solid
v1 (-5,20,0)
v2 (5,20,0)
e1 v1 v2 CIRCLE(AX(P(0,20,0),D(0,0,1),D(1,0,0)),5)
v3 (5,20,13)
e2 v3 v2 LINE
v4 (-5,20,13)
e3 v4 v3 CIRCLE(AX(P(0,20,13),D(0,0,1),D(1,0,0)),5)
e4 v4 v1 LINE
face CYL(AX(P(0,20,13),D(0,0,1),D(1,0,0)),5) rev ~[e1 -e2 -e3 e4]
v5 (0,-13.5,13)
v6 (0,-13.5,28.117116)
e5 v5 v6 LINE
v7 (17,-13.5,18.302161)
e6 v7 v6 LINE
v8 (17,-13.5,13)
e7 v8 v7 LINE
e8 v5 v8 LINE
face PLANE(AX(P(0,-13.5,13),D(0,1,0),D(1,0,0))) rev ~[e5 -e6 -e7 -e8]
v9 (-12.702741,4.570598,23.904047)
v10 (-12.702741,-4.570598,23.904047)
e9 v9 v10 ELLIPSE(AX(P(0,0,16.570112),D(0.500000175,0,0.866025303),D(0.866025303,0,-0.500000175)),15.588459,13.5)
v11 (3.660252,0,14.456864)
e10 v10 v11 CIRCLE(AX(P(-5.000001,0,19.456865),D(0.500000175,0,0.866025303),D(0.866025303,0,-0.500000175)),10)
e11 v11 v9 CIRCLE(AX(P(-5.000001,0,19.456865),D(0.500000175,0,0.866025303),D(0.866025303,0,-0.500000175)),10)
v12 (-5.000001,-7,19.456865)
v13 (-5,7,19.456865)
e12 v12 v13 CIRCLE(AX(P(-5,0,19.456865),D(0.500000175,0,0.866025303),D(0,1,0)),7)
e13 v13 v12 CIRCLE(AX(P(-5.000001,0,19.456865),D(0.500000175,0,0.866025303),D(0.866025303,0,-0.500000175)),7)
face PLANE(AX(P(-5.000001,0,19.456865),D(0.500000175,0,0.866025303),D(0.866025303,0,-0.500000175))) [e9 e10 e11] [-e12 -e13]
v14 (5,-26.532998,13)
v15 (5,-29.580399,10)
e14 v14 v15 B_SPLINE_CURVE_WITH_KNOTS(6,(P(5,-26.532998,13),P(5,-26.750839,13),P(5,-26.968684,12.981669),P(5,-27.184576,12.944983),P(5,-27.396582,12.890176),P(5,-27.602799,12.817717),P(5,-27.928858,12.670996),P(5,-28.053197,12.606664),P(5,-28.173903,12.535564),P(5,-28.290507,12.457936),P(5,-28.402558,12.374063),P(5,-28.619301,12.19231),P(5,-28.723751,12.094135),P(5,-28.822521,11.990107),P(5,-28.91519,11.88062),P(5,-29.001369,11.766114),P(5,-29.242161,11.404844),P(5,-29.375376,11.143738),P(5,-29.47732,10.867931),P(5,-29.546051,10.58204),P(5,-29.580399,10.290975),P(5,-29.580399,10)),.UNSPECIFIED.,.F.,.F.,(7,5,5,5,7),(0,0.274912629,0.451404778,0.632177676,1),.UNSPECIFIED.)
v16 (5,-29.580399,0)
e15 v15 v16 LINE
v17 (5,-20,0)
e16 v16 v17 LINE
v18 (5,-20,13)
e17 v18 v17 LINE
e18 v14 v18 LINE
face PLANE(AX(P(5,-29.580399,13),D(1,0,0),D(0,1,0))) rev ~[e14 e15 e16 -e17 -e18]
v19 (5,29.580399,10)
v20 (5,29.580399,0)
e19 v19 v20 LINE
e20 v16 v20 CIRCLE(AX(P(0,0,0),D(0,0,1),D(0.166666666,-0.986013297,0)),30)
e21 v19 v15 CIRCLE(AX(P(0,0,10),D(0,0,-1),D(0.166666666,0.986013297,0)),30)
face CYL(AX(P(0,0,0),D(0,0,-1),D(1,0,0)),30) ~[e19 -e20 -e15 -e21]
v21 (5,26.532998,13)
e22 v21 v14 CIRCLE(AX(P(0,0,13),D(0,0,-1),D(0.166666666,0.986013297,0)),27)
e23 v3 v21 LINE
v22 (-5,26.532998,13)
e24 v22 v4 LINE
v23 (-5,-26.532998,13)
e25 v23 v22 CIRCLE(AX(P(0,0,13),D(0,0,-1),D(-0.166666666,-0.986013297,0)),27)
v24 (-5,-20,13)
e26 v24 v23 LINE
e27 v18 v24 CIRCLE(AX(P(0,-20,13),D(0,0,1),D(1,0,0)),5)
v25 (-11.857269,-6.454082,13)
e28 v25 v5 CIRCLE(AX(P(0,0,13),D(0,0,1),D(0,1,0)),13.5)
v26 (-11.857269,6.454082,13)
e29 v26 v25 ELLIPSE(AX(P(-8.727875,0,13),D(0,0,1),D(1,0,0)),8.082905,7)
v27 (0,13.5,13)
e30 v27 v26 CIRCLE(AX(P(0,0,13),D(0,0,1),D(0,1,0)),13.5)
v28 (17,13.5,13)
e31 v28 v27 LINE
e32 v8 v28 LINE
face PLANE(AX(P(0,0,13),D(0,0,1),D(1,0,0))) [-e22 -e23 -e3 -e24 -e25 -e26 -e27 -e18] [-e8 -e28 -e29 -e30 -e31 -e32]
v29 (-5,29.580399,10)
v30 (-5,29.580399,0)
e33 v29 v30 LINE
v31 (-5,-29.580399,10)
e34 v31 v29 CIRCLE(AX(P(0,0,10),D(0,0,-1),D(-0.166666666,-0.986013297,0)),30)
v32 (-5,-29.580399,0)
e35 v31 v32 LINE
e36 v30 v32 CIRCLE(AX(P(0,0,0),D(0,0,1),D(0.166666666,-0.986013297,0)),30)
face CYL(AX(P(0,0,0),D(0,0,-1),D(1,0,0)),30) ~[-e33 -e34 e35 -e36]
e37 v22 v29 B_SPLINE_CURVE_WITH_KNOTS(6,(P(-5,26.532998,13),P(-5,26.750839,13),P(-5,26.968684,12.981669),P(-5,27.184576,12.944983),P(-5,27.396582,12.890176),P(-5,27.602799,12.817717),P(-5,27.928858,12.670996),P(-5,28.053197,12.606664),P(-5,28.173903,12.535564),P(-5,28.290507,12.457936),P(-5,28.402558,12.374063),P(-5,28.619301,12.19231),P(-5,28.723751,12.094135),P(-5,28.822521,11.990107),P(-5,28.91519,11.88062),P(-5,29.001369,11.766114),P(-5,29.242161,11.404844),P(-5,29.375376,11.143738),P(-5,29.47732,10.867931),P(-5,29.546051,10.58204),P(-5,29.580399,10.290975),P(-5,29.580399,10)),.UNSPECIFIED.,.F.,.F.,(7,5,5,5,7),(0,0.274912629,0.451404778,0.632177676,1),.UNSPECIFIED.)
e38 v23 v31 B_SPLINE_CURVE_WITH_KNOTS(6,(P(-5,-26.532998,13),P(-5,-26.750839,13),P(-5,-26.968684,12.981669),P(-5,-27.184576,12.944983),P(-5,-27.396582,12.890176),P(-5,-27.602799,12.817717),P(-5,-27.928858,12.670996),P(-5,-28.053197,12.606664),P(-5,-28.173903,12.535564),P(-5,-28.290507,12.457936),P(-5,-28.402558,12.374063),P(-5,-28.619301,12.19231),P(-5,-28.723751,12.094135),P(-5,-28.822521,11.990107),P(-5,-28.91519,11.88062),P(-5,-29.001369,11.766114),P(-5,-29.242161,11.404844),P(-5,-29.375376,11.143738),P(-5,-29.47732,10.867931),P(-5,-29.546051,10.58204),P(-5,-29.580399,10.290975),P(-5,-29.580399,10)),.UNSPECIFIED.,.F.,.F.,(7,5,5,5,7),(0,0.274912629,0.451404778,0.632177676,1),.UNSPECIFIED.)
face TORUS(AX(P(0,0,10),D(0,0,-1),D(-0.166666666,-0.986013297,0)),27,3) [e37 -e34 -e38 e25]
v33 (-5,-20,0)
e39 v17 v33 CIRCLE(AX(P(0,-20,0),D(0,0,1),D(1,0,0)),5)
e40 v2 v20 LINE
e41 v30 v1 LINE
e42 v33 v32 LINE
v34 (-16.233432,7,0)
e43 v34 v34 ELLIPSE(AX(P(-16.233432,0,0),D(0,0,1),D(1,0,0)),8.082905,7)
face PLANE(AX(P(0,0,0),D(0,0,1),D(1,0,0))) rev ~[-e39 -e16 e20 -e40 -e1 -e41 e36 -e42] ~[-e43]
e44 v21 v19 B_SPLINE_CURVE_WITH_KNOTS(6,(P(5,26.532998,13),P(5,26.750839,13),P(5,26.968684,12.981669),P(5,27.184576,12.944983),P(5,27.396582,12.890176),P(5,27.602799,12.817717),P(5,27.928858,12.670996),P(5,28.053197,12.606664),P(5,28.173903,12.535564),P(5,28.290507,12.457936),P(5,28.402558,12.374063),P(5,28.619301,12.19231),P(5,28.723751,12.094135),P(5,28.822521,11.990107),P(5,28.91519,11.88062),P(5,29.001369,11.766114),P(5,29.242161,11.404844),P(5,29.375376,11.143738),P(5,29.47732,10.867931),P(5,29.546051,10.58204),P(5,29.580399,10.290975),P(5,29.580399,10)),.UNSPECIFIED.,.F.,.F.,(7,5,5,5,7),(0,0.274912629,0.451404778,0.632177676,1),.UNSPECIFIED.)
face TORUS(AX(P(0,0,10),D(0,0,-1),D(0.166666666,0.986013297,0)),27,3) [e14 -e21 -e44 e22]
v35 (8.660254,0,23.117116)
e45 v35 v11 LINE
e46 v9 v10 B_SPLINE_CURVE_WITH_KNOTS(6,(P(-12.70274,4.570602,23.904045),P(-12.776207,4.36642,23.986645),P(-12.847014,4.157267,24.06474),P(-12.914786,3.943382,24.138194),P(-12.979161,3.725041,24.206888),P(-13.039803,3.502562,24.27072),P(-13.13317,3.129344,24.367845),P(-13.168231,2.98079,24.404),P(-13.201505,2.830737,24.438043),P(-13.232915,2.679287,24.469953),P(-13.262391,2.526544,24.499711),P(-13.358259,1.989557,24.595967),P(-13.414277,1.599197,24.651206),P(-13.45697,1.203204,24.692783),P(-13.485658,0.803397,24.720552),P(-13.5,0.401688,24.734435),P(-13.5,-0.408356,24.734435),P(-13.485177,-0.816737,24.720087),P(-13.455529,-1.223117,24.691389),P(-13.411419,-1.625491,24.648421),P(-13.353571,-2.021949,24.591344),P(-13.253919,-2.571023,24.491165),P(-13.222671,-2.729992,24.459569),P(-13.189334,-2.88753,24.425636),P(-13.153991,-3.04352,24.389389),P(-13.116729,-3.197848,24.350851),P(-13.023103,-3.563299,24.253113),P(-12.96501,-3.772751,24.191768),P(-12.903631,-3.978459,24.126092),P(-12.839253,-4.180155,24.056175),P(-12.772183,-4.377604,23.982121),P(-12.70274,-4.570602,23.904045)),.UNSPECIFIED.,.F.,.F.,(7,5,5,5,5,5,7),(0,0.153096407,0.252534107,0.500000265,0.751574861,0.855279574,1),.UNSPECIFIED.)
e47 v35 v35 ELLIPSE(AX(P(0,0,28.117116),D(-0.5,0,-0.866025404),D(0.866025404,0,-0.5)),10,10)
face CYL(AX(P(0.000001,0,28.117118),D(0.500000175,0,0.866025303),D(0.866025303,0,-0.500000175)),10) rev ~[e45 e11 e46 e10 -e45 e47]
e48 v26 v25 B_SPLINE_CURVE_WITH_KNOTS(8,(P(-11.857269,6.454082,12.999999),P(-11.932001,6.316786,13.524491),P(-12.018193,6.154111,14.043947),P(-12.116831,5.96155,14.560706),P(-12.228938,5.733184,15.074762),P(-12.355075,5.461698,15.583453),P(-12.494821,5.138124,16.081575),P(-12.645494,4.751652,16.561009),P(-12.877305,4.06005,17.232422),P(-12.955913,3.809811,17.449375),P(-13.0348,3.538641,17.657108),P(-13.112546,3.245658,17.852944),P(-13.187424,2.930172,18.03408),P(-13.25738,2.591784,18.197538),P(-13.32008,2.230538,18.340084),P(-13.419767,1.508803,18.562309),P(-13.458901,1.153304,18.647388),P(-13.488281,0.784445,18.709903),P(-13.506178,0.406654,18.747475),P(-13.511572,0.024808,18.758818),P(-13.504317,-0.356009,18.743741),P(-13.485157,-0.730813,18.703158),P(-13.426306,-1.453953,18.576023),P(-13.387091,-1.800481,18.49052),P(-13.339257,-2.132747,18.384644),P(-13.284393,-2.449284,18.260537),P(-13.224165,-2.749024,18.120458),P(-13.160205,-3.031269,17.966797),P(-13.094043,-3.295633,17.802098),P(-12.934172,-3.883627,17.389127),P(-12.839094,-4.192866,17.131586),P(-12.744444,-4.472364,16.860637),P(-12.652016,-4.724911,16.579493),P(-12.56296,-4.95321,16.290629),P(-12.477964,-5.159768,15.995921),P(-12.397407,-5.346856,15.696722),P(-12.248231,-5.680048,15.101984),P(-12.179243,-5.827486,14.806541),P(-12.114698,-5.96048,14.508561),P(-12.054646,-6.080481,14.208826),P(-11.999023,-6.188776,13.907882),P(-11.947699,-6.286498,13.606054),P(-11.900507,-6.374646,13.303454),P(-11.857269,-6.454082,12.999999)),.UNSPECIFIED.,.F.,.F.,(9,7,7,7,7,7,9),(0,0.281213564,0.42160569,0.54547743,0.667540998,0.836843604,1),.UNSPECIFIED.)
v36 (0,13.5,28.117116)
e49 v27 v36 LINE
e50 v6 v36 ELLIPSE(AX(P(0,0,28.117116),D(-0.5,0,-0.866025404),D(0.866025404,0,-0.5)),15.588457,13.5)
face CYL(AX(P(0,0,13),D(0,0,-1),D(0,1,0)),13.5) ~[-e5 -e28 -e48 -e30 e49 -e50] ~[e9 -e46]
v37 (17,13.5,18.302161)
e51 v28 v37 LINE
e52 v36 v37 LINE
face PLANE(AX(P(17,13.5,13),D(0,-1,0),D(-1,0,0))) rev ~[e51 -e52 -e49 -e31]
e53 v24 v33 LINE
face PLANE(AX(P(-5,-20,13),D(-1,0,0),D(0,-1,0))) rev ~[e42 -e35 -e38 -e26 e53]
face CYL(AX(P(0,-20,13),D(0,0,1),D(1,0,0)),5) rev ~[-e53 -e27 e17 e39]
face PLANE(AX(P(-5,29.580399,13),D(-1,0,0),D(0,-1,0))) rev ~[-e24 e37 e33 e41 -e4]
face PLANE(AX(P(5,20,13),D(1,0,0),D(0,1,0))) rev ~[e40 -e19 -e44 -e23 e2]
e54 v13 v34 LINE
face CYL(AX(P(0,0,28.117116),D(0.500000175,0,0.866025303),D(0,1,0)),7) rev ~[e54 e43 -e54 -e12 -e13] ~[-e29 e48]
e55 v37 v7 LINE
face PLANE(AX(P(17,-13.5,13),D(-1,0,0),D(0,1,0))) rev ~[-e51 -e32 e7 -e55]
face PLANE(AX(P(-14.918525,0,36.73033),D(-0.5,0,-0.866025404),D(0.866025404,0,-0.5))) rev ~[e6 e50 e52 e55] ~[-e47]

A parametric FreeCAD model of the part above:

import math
import FreeCAD as App
import Part
import Sketcher
Q = App.Units.Quantity


def edges_at(feature, points):
    """Names of the edges that pass closest to the given points."""
    edges = feature.Shape.Edges
    near = lambda p: min(range(len(edges)), key=lambda i: edges[i].distToShape(Part.Vertex(*p))[0])
    return sorted({f"Edge{near(p) + 1}" for p in points})


def add_polygon(sketch, points):
    """Adds a closed chain of lines whose ends are joined by coincident constraints."""
    first, n = sketch.GeometryCount, len(points)
    for a, b in zip(points, points[1:] + points[:1]):
        sketch.addGeometry(Part.LineSegment(App.Vector(*a, 0), App.Vector(*b, 0)), False)
    for i in range(n):
        sketch.addConstraint(Sketcher.Constraint("Coincident", first + i, 2, first + (i + 1) % n, 1))

doc = App.newDocument("Part")
body = doc.addObject("PartDesign::Body", "Body")

# Sketch on XY plane
sketch1 = body.newObject("Sketcher::SketchObject", "Sketch")
sketch1.AttachmentSupport = (doc.getObject("XY_Plane"), [""])
sketch1.MapMode = "FlatFace"
sketch1.addGeometry(Part.Circle(App.Vector(0, 0, 0), App.Vector(0, 0, 1), 30), False)
sketch1.addConstraint([
    Sketcher.Constraint("Coincident", 0, 3, -1, 1),
    Sketcher.Constraint("Diameter", 0, 60.0),
])
pad1 = body.newObject("PartDesign::Pad", "Pad")
pad1.Profile = sketch1
pad1.Length = 13

# Sketch on XY plane
sketch2 = body.newObject("Sketcher::SketchObject", "Sketch001")
sketch2.AttachmentSupport = (doc.getObject("XY_Plane"), [""])
sketch2.MapMode = "FlatFace"
sketch2.AttachmentOffset = App.Placement(App.Vector(0, 0, 13), App.Rotation())
sketch2.addGeometry([
    Part.LineSegment(App.Vector(5, -30, 0), App.Vector(5, -20, 0)),
    Part.ArcOfCircle(Part.Circle(App.Vector(0, -20, 0), App.Vector(0, 0, 1), 5), math.radians(0), math.radians(180)),
    Part.LineSegment(App.Vector(-5, -20, 0), App.Vector(-5, -30, 0)),
    Part.ArcOfCircle(Part.Circle(App.Vector(0, 0, 0), App.Vector(0, 0, 1), 30), math.radians(-99.59), math.radians(-80.41)),
], False)
sketch2.addConstraint([
    Sketcher.Constraint("Tangent", 0, 2, 1, 1),
    Sketcher.Constraint("Tangent", 1, 2, 2, 1),
    Sketcher.Constraint("Coincident", 2, 2, 3, 1),
    Sketcher.Constraint("Coincident", 3, 2, 0, 1),
    Sketcher.Constraint("Vertical", 0),
    Sketcher.Constraint("Vertical", 2),
    Sketcher.Constraint("Coincident", 3, 3, -1, 1),
    Sketcher.Constraint("PointOnObject", 1, 3, -2),
    Sketcher.Constraint("Radius", 1, 5.0),
    Sketcher.Constraint("DistanceY", 1, 3, -1, 1, 20.0),
    Sketcher.Constraint("DistanceY", 0, 1, 0, 2, 9.580399),
])
pocket1 = body.newObject("PartDesign::Pocket", "Pocket")
pocket1.Profile = sketch2
pocket1.Length = 25

# Sketch on XY plane
sketch3 = body.newObject("Sketcher::SketchObject", "Sketch002")
sketch3.AttachmentSupport = (doc.getObject("XY_Plane"), [""])
sketch3.MapMode = "FlatFace"
sketch3.AttachmentOffset = App.Placement(App.Vector(0, 0, 13), App.Rotation())
sketch3.addGeometry([
    Part.ArcOfCircle(Part.Circle(App.Vector(0, 20, 0), App.Vector(0, 0, 1), 5), math.radians(180), math.radians(360)),
    Part.LineSegment(App.Vector(5, 20, 0), App.Vector(5, 30, 0)),
    Part.ArcOfCircle(Part.Circle(App.Vector(0, 0, 0), App.Vector(0, 0, 1), 30), math.radians(80.41), math.radians(99.59)),
    Part.LineSegment(App.Vector(-5, 30, 0), App.Vector(-5, 20, 0)),
], False)
sketch3.addConstraint([
    Sketcher.Constraint("Tangent", 0, 2, 1, 1),
    Sketcher.Constraint("Coincident", 1, 2, 2, 1),
    Sketcher.Constraint("Coincident", 2, 2, 3, 1),
    Sketcher.Constraint("Tangent", 3, 2, 0, 1),
    Sketcher.Constraint("Vertical", 1),
    Sketcher.Constraint("Vertical", 3),
    Sketcher.Constraint("Coincident", 2, 3, -1, 1),
    Sketcher.Constraint("PointOnObject", 0, 3, -2),
    Sketcher.Constraint("Radius", 0, 5.0),
    Sketcher.Constraint("DistanceY", -1, 1, 0, 3, 20.0),
    Sketcher.Constraint("DistanceY", 1, 1, 1, 2, 9.580399),
])
pocket2 = body.newObject("PartDesign::Pocket", "Pocket001")
pocket2.Profile = sketch3
pocket2.Length = 25

# Sketch on XY plane
sketch4 = body.newObject("Sketcher::SketchObject", "Sketch003")
sketch4.AttachmentSupport = (doc.getObject("XY_Plane"), [""])
sketch4.MapMode = "FlatFace"
sketch4.AttachmentOffset = App.Placement(App.Vector(0, 0, 13), App.Rotation())
sketch4.addGeometry([
    Part.ArcOfCircle(Part.Circle(App.Vector(0, 0, 0), App.Vector(0, 0, 1), 14), math.radians(90), math.radians(270)),
    Part.LineSegment(App.Vector(0, -14, 0), App.Vector(17, -14, 0)),
    Part.LineSegment(App.Vector(17, -14, 0), App.Vector(17, 14, 0)),
    Part.LineSegment(App.Vector(17, 14, 0), App.Vector(0, 14, 0)),
], False)
sketch4.addConstraint([
    Sketcher.Constraint("Tangent", 0, 2, 1, 1),
    Sketcher.Constraint("Coincident", 1, 2, 2, 1),
    Sketcher.Constraint("Coincident", 2, 2, 3, 1),
    Sketcher.Constraint("Tangent", 3, 2, 0, 1),
    Sketcher.Constraint("Horizontal", 1),
    Sketcher.Constraint("Vertical", 2),
    Sketcher.Constraint("Horizontal", 3),
    Sketcher.Constraint("Coincident", 0, 3, -1, 1),
    Sketcher.Constraint("Radius", 0, 13.5),
    Sketcher.Constraint("DistanceX", 1, 1, 1, 2, 17.0),
])
pad2 = body.newObject("PartDesign::Pad", "Pad001")
pad2.Profile = sketch4
pad2.Length = 25

# Sketch on XZ plane
sketch5 = body.newObject("Sketcher::SketchObject", "Sketch004")
sketch5.AttachmentSupport = (doc.getObject("XZ_Plane"), [""])
sketch5.MapMode = "FlatFace"
add_polygon(sketch5, [(-14.9, 36.7), (17, 18.3), (17, 39.2), (-14.9, 39.2)])  # lines 0-3
sketch5.addConstraint([
    Sketcher.Constraint("Vertical", 1),
    Sketcher.Constraint("Horizontal", 2),
    Sketcher.Constraint("Vertical", 3),
    Sketcher.Constraint("Angle", 0, Q("-30 deg")),
    Sketcher.Constraint("DistanceX", -1, 1, 0, 2, 17.0),
    Sketcher.Constraint("Distance", 0, 36.856338),
    Sketcher.Constraint("DistanceY", 1, 1, 1, 2, 20.932064),
    Sketcher.Constraint("DistanceY", -1, 1, 0, 2, 18.302161),
])
pocket3 = body.newObject("PartDesign::Pocket", "Pocket002")
pocket3.Profile = sketch5
pocket3.Length = 50
pocket3.Midplane = True

# Sketch on an angled plane
sketch6 = body.newObject("Sketcher::SketchObject", "Sketch005")
sketch6.Placement = App.Placement(App.Vector(12.175068, 0, 21.087837), App.Rotation(App.Vector(0.866025303, 0, -0.500000175), App.Vector(0, 1, 0), App.Vector(0.500000175, 0, 0.866025303), "ZXY"))
sketch6.addGeometry([
    Part.Circle(App.Vector(-14, 0, 0), App.Vector(0, 0, 1), 10),
    Part.Circle(App.Vector(-14, 0, 0), App.Vector(0, 0, 1), 7),
], False)
sketch6.addConstraint([
    Sketcher.Constraint("Coincident", 1, 3, 0, 3),
    Sketcher.Constraint("PointOnObject", 0, 3, -1),
    Sketcher.Constraint("Diameter", 0, 20.0),
    Sketcher.Constraint("Diameter", 1, 14.0),
    Sketcher.Constraint("DistanceX", 0, 3, -1, 1, 14.058558),
])
pocket4 = body.newObject("PartDesign::Pocket", "Pocket003")
pocket4.Profile = sketch6
pocket4.Length = 10

# Sketch on an angled plane
sketch7 = body.newObject("Sketcher::SketchObject", "Sketch006")
sketch7.Placement = App.Placement(App.Vector(0, 0, 28.117116), App.Rotation(App.Vector(0, 1, 0), App.Vector(-0.866025303, 0, 0.500000175), App.Vector(0.500000175, 0, 0.866025303), "ZXY"))
sketch7.addGeometry(Part.Circle(App.Vector(0, 0, 0), App.Vector(0, 0, 1), 7), False)
sketch7.addConstraint([
    Sketcher.Constraint("Coincident", 0, 3, -1, 1),
    Sketcher.Constraint("Diameter", 0, 14.0),
])
pocket5 = body.newObject("PartDesign::Pocket", "Pocket004")
pocket5.Profile = sketch7
pocket5.Type = "ThroughAll"
doc.recompute()

fillet = body.newObject("PartDesign::Fillet", "Fillet")
fillet.Base = (pocket5, edges_at(pocket5, [(-30, 0, 13)]))
fillet.Radius = 3
doc.recompute()

fillet2 = body.newObject("PartDesign::Fillet", "Fillet001")
fillet2.Base = (fillet, edges_at(fillet, [(30, 0, 13)]))
fillet2.Radius = 3

doc.recompute()
